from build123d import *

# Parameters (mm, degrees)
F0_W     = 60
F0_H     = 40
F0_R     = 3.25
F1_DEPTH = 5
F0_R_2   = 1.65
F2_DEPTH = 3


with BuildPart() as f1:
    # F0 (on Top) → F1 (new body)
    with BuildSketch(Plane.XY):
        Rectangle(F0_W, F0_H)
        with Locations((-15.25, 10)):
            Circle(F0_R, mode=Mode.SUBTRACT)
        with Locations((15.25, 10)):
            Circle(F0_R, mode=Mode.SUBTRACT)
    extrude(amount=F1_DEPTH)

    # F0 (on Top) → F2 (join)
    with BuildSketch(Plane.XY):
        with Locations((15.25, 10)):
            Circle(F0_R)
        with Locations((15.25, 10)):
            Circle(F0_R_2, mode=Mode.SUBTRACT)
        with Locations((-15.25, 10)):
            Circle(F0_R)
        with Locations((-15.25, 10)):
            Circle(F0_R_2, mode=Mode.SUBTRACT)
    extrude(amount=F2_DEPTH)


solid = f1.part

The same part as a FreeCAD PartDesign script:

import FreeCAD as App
import Part
import Sketcher
from FreeCAD import Vector

doc = App.newDocument("Part")
body = doc.addObject("PartDesign::Body", "Body")

# Sketch on XY plane
sketch1 = body.newObject("Sketcher::SketchObject", "Sketch")
sketch1.AttachmentSupport = (doc.getObject("XY_Plane"), [""])
sketch1.MapMode = "FlatFace"
sketch1.addGeometry(Part.LineSegment(Vector(-30, 20, 0), Vector(-30, -20, 0)), False)
sketch1.addGeometry(Part.LineSegment(Vector(-30, -20, 0), Vector(30, -20, 0)), False)
sketch1.addGeometry(Part.LineSegment(Vector(30, -20, 0), Vector(30, 20, 0)), False)
sketch1.addGeometry(Part.LineSegment(Vector(30, 20, 0), Vector(-30, 20, 0)), False)
sketch1.addGeometry(Part.Circle(Vector(-15.25, 10, 0), Vector(0, 0, 1), 3.25), False)
sketch1.addGeometry(Part.Circle(Vector(15.25, 10, 0), Vector(0, 0, 1), 3.25), False)
sketch1.addConstraint(Sketcher.Constraint("Coincident", 0, 2, 1, 1))
sketch1.addConstraint(Sketcher.Constraint("Coincident", 1, 2, 2, 1))
sketch1.addConstraint(Sketcher.Constraint("Coincident", 2, 2, 3, 1))
sketch1.addConstraint(Sketcher.Constraint("Coincident", 3, 2, 0, 1))
sketch1.addConstraint(Sketcher.Constraint("Vertical", 0))
sketch1.addConstraint(Sketcher.Constraint("Horizontal", 1))
sketch1.addConstraint(Sketcher.Constraint("Vertical", 2))
sketch1.addConstraint(Sketcher.Constraint("Horizontal", 3))
sketch1.addConstraint(Sketcher.Constraint("Equal", 4, 5))
sketch1.addConstraint(Sketcher.Constraint("Symmetric", 0, 2, 2, 2, -1, 1))
sketch1.addConstraint(Sketcher.Constraint("Symmetric", 4, 3, 5, 3, -2))
sketch1.addConstraint(Sketcher.Constraint("Diameter", 4, 6.5))
sketch1.addConstraint(Sketcher.Constraint("DistanceX", 1, 1, 1, 2, 60.0))
sketch1.addConstraint(Sketcher.Constraint("DistanceY", 0, 2, 0, 1, 40.0))
sketch1.addConstraint(Sketcher.Constraint("DistanceY", -1, 1, 4, 3, 10.0))
sketch1.addConstraint(Sketcher.Constraint("DistanceX", 4, 3, 5, 3, 30.5))
pad1 = body.newObject("PartDesign::Pad", "Pad")
pad1.Profile = sketch1
pad1.Length = 5

# Sketch on XY plane
sketch2 = body.newObject("Sketcher::SketchObject", "Sketch001")
sketch2.AttachmentSupport = (doc.getObject("XY_Plane"), [""])
sketch2.MapMode = "FlatFace"
sketch2.addGeometry(Part.Circle(Vector(15.25, 10, 0), Vector(0, 0, 1), 3.25), False)
sketch2.addGeometry(Part.Circle(Vector(15.25, 10, 0), Vector(0, 0, 1), 1.65), False)
sketch2.addGeometry(Part.Circle(Vector(-15.25, 10, 0), Vector(0, 0, 1), 3.25), False)
sketch2.addGeometry(Part.Circle(Vector(-15.25, 10, 0), Vector(0, 0, 1), 1.65), False)
sketch2.addConstraint(Sketcher.Constraint("Coincident", 1, 3, 0, 3))
sketch2.addConstraint(Sketcher.Constraint("Coincident", 3, 3, 2, 3))
sketch2.addConstraint(Sketcher.Constraint("Equal", 0, 2))
sketch2.addConstraint(Sketcher.Constraint("Equal", 1, 3))
sketch2.addConstraint(Sketcher.Constraint("Symmetric", 0, 3, 2, 3, -2))
sketch2.addConstraint(Sketcher.Constraint("Diameter", 0, 6.5))
sketch2.addConstraint(Sketcher.Constraint("Diameter", 1, 3.3))
sketch2.addConstraint(Sketcher.Constraint("DistanceY", -1, 1, 0, 3, 10.0))
sketch2.addConstraint(Sketcher.Constraint("DistanceX", 2, 3, 0, 3, 30.5))
pad2 = body.newObject("PartDesign::Pad", "Pad001")
pad2.Profile = sketch2
pad2.Length = 3

doc.recompute()
